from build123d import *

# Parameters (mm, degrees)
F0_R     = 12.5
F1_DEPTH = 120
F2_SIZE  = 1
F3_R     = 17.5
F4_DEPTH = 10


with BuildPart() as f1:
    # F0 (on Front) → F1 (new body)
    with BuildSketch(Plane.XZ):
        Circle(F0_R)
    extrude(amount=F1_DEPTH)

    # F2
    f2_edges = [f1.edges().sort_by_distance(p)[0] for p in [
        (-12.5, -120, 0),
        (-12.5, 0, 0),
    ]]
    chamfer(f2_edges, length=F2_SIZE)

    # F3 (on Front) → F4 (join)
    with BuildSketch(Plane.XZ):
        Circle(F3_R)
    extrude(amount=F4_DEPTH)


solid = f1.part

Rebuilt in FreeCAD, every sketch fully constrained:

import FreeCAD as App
import Part
import Sketcher
from FreeCAD import Vector


def edges_at(feature, points):
    """Names of the edges that pass closest to the given points."""
    edges = feature.Shape.Edges
    near = lambda p: min(range(len(edges)), key=lambda i: edges[i].distToShape(Part.Vertex(*p))[0])
    return sorted({f"Edge{near(p) + 1}" for p in points})

doc = App.newDocument("Part")
body = doc.addObject("PartDesign::Body", "Body")

sketch1 = doc.addObject("Sketcher::SketchObject", "Sketch")
body.addObject(sketch1)
sketch1.AttachmentSupport = (doc.XZ_Plane, [""])
sketch1.MapMode = "FlatFace"
sketch1.addGeometry(Part.Circle(Vector(0, 0, 0), Vector(0, 0, 1), 12.5), False)
sketch1.addConstraint(Sketcher.Constraint("Coincident", 0, 3, -1, 1))
sketch1.addConstraint(Sketcher.Constraint("Diameter", 0, 25.0))
pad1 = doc.addObject("PartDesign::Pad", "Pad")
body.addObject(pad1)
pad1.Profile = sketch1
pad1.Length = 120
doc.recompute()

chamfer = doc.addObject("PartDesign::Chamfer", "Chamfer")
body.addObject(chamfer)
chamfer.Base = (pad1, edges_at(pad1, [(-12.5, -120, 0), (-12.5, 0, 0)]))
chamfer.Size = 1

sketch2 = doc.addObject("Sketcher::SketchObject", "Sketch001")
body.addObject(sketch2)
sketch2.AttachmentSupport = (doc.XZ_Plane, [""])
sketch2.MapMode = "FlatFace"
sketch2.addGeometry(Part.Circle(Vector(0, 0, 0), Vector(0, 0, 1), 17.5), False)
sketch2.addConstraint(Sketcher.Constraint("Coincident", 0, 3, -1, 1))
sketch2.addConstraint(Sketcher.Constraint("Diameter", 0, 35.0))
pad2 = doc.addObject("PartDesign::Pad", "Pad001")
body.addObject(pad2)
pad2.Profile = sketch2
pad2.Length = 10

doc.recompute()
